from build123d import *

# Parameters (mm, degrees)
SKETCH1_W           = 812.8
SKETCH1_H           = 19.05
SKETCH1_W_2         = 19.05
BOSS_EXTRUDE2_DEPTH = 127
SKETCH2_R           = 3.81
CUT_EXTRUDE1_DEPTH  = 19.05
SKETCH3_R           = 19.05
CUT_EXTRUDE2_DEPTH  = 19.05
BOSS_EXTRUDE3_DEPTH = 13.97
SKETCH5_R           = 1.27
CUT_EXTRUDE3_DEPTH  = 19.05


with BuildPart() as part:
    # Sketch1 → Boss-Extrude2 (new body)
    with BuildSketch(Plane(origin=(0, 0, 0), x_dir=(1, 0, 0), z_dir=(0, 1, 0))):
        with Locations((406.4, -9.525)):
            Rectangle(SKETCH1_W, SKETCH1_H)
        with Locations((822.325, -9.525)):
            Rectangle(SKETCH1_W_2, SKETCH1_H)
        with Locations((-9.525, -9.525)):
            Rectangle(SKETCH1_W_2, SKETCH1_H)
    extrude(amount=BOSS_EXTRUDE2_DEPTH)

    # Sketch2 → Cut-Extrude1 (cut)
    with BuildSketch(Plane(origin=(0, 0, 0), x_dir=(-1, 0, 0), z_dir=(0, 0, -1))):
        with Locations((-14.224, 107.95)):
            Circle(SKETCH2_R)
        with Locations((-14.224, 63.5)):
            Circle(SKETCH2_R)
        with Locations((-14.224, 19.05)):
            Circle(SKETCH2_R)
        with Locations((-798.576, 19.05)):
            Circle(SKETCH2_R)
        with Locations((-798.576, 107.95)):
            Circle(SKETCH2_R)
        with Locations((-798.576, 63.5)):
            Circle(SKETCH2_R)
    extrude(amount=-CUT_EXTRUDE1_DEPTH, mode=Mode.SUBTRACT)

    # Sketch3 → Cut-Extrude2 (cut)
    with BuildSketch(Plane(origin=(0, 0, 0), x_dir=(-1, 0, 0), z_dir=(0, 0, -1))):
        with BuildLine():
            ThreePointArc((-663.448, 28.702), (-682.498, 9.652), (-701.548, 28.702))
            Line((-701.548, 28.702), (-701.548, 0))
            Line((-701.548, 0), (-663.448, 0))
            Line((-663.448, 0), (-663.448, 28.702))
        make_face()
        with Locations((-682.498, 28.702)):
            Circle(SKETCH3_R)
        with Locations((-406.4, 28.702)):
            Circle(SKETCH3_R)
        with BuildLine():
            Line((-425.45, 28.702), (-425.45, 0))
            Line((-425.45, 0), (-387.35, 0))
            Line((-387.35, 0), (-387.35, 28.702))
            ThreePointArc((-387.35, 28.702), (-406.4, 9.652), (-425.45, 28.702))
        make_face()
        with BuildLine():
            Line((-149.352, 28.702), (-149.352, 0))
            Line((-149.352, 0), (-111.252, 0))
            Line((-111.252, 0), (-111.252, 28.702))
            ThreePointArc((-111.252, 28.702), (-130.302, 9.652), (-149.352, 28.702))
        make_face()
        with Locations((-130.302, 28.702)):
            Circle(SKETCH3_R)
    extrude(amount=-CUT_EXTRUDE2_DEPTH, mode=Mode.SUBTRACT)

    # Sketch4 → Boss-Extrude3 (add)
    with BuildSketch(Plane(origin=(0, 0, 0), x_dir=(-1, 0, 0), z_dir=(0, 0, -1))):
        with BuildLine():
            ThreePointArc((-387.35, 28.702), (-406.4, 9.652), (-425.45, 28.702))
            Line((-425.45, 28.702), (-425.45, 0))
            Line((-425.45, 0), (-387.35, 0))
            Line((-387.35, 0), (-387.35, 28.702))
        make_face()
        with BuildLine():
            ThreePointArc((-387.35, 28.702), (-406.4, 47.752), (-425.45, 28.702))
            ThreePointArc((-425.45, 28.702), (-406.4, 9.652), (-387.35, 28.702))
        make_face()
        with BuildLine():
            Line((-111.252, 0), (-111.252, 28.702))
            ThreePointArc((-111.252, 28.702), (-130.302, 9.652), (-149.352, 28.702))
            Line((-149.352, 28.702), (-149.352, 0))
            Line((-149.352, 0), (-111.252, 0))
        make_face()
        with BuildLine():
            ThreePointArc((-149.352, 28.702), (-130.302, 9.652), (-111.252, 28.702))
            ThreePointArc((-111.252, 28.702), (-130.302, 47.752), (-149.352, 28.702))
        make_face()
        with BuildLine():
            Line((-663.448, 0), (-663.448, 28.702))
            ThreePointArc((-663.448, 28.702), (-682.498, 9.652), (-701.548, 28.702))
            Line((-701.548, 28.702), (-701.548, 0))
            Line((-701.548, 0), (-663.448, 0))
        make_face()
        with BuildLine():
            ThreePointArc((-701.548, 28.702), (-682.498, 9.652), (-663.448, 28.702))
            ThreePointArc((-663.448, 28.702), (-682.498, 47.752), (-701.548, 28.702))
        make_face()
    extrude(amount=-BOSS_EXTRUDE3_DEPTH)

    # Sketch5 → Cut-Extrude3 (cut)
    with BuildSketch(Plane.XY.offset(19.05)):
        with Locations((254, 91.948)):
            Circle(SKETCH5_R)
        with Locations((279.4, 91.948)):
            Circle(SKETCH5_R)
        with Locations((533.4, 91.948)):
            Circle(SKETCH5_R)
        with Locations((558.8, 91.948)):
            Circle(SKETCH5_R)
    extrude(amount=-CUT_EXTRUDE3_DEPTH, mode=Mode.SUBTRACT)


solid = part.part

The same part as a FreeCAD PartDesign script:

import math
import FreeCAD as App
import Part
import Sketcher

V = App.Vector
Q = App.Units.Quantity


def add_polygon(sketch, points):
    """Adds a closed chain of lines whose ends are joined by coincident constraints."""
    first, n = sketch.GeometryCount, len(points)
    for a, b in zip(points, points[1:] + points[:1]):
        sketch.addGeometry(Part.LineSegment(App.Vector(*a, 0), App.Vector(*b, 0)), False)
    for i in range(n):
        sketch.addConstraint(Sketcher.Constraint("Coincident", first + i, 2, first + (i + 1) % n, 1))

doc = App.newDocument("Part")
body = doc.addObject("PartDesign::Body", "Body")

sketch1 = body.newObject("Sketcher::SketchObject", "Sketch")
sketch1.AttachmentSupport = (doc.getObject("XZ_Plane"), [""])
sketch1.MapMode = "FlatFace"
add_polygon(sketch1, [(832, 19), (832, 0), (-19, 0), (-19, 19)])
sketch1.addConstraint(Sketcher.Constraint("Vertical", 0))
sketch1.addConstraint(Sketcher.Constraint("Horizontal", 1))
sketch1.addConstraint(Sketcher.Constraint("Vertical", 2))
sketch1.addConstraint(Sketcher.Constraint("Horizontal", 3))
sketch1.addConstraint(Sketcher.Constraint("PointOnObject", 0, 2, -1))
sketch1.addConstraint(Sketcher.Constraint("DistanceX", 1, 2, 1, 1, Q("33.5 in")))
sketch1.addConstraint(Sketcher.Constraint("DistanceY", 0, 2, 0, 1, Q("0.75 in")))
sketch1.addConstraint(Sketcher.Constraint("DistanceX", -1, 1, 0, 2, Q("32.75 in")))
pad1 = body.newObject("PartDesign::Pad", "Pad")
pad1.Profile = sketch1
pad1.Length = Q("5 in")
pad1.Reversed = True

sketch2 = body.newObject("Sketcher::SketchObject", "Sketch001")
sketch2.AttachmentSupport = (doc.getObject("XY_Plane"), [""])
sketch2.MapMode = "FlatFace"
sketch2.addGeometry(Part.Circle(V(14.2, 108, 0), V(0, 0, 1), 3.8), False)
sketch2.addGeometry(Part.Circle(V(14.2, 63.5, 0), V(0, 0, 1), 3.8), False)
sketch2.addGeometry(Part.Circle(V(14.2, 19.1, 0), V(0, 0, 1), 3.8), False)
sketch2.addGeometry(Part.Circle(V(798.6, 19.1, 0), V(0, 0, 1), 3.8), False)
sketch2.addGeometry(Part.Circle(V(798.6, 108, 0), V(0, 0, 1), 3.8), False)
sketch2.addGeometry(Part.Circle(V(798.6, 63.5, 0), V(0, 0, 1), 3.8), False)
sketch2.addConstraint(Sketcher.Constraint("Equal", 0, 1))
sketch2.addConstraint(Sketcher.Constraint("Equal", 1, 2))
sketch2.addConstraint(Sketcher.Constraint("Equal", 2, 3))
sketch2.addConstraint(Sketcher.Constraint("Equal", 3, 4))
sketch2.addConstraint(Sketcher.Constraint("Equal", 4, 5))
sketch2.addConstraint(Sketcher.Constraint("Horizontal", 2, 3, 3, 3))
sketch2.addConstraint(Sketcher.Constraint("Horizontal", 0, 3, 4, 3))
sketch2.addConstraint(Sketcher.Constraint("Horizontal", 1, 3, 5, 3))
sketch2.addConstraint(Sketcher.Constraint("Vertical", 0, 3, 1, 3))
sketch2.addConstraint(Sketcher.Constraint("Vertical", 1, 3, 2, 3))
sketch2.addConstraint(Sketcher.Constraint("Vertical", 3, 3, 4, 3))
sketch2.addConstraint(Sketcher.Constraint("Vertical", 4, 3, 5, 3))
sketch2.addConstraint(Sketcher.Constraint("Diameter", 0, Q("0.3 in")))
sketch2.addConstraint(Sketcher.Constraint("DistanceY", -1, 1, 1, 3, Q("2.5 in")))
sketch2.addConstraint(Sketcher.Constraint("DistanceY", 2, 3, 0, 3, Q("3.5 in")))
sketch2.addConstraint(Sketcher.Constraint("DistanceX", -1, 1, 0, 3, Q("0.56 in")))
sketch2.addConstraint(Sketcher.Constraint("DistanceY", -1, 1, 0, 3, Q("4.25 in")))
sketch2.addConstraint(Sketcher.Constraint("DistanceX", -1, 1, 3, 3, Q("31.44 in")))
pocket1 = body.newObject("PartDesign::Pocket", "Pocket")
pocket1.Profile = sketch2
pocket1.Length = Q("0.75 in")
pocket1.Reversed = True

sketch3 = body.newObject("Sketcher::SketchObject", "Sketch002")
sketch3.AttachmentSupport = (doc.getObject("XY_Plane"), [""])
sketch3.MapMode = "FlatFace"
sketch3.addGeometry(Part.LineSegment(V(702, 29, 0), V(702, 0, 0)), False)
sketch3.addGeometry(Part.LineSegment(V(702, 0, 0), V(663, 0, 0)), False)
sketch3.addGeometry(Part.LineSegment(V(663, 0, 0), V(663, 29, 0)), False)
sketch3.addGeometry(Part.ArcOfCircle(Part.Circle(V(682, 29, 0), V(0, 0, 1), 19), math.radians(0), math.radians(180)), False)
sketch3.addGeometry(Part.ArcOfCircle(Part.Circle(V(406, 29, 0), V(0, 0, 1), 19), math.radians(0), math.radians(180)), False)
sketch3.addGeometry(Part.LineSegment(V(425, 29, 0), V(425, 0, 0)), False)
sketch3.addGeometry(Part.LineSegment(V(425, 0, 0), V(387, 0, 0)), False)
sketch3.addGeometry(Part.LineSegment(V(387, 0, 0), V(387, 29, 0)), False)
sketch3.addGeometry(Part.LineSegment(V(149, 29, 0), V(149, 0, 0)), False)
sketch3.addGeometry(Part.LineSegment(V(149, 0, 0), V(111, 0, 0)), False)
sketch3.addGeometry(Part.LineSegment(V(111, 0, 0), V(111, 29, 0)), False)
sketch3.addGeometry(Part.ArcOfCircle(Part.Circle(V(130, 29, 0), V(0, 0, 1), 19), math.radians(0), math.radians(180)), False)
sketch3.addConstraint(Sketcher.Constraint("Coincident", 0, 2, 1, 1))
sketch3.addConstraint(Sketcher.Constraint("Coincident", 1, 2, 2, 1))
sketch3.addConstraint(Sketcher.Constraint("Tangent", 2, 2, 3, 2))
sketch3.addConstraint(Sketcher.Constraint("Tangent", 3, 1, 0, 1))
sketch3.addConstraint(Sketcher.Constraint("Tangent", 4, 1, 5, 1))
sketch3.addConstraint(Sketcher.Constraint("Coincident", 5, 2, 6, 1))
sketch3.addConstraint(Sketcher.Constraint("Coincident", 6, 2, 7, 1))
sketch3.addConstraint(Sketcher.Constraint("Tangent", 7, 2, 4, 2))
sketch3.addConstraint(Sketcher.Constraint("Coincident", 8, 2, 9, 1))
sketch3.addConstraint(Sketcher.Constraint("Coincident", 9, 2, 10, 1))
sketch3.addConstraint(Sketcher.Constraint("Tangent", 10, 2, 11, 2))
sketch3.addConstraint(Sketcher.Constraint("Tangent", 11, 1, 8, 1))
sketch3.addConstraint(Sketcher.Constraint("Vertical", 0))
sketch3.addConstraint(Sketcher.Constraint("Horizontal", 1))
sketch3.addConstraint(Sketcher.Constraint("Vertical", 2))
sketch3.addConstraint(Sketcher.Constraint("Vertical", 5))
sketch3.addConstraint(Sketcher.Constraint("Horizontal", 6))
sketch3.addConstraint(Sketcher.Constraint("Vertical", 7))
sketch3.addConstraint(Sketcher.Constraint("Vertical", 8))
sketch3.addConstraint(Sketcher.Constraint("Horizontal", 9))
sketch3.addConstraint(Sketcher.Constraint("Vertical", 10))
sketch3.addConstraint(Sketcher.Constraint("Equal", 3, 4))
sketch3.addConstraint(Sketcher.Constraint("Equal", 4, 11))
sketch3.addConstraint(Sketcher.Constraint("PointOnObject", 0, 2, -1))
sketch3.addConstraint(Sketcher.Constraint("PointOnObject", 5, 2, -1))
sketch3.addConstraint(Sketcher.Constraint("PointOnObject", 8, 2, -1))
sketch3.addConstraint(Sketcher.Constraint("Horizontal", 3, 3, 4, 3))
sketch3.addConstraint(Sketcher.Constraint("Horizontal", 4, 3, 11, 3))
sketch3.addConstraint(Sketcher.Constraint("Radius", 3, Q("0.75 in")))
sketch3.addConstraint(Sketcher.Constraint("DistanceX", -1, 1, 4, 3, Q("16 in")))
sketch3.addConstraint(Sketcher.Constraint("DistanceY", 0, 2, 0, 1, Q("1.13 in")))
sketch3.addConstraint(Sketcher.Constraint("DistanceX", -1, 1, 3, 3, Q("26.87 in")))
sketch3.addConstraint(Sketcher.Constraint("DistanceX", -1, 1, 11, 3, Q("5.13 in")))
pocket2 = body.newObject("PartDesign::Pocket", "Pocket001")
pocket2.Profile = sketch3
pocket2.Length = Q("0.75 in")
pocket2.Reversed = True

sketch4 = body.newObject("Sketcher::SketchObject", "Sketch003")
sketch4.AttachmentSupport = (doc.getObject("XY_Plane"), [""])
sketch4.MapMode = "FlatFace"
sketch4.addGeometry(Part.LineSegment(V(425, 29, 0), V(425, 0, 0)), False)
sketch4.addGeometry(Part.LineSegment(V(425, 0, 0), V(387, 0, 0)), False)
sketch4.addGeometry(Part.LineSegment(V(387, 0, 0), V(387, 29, 0)), False)
sketch4.addGeometry(Part.ArcOfCircle(Part.Circle(V(406, 29, 0), V(0, 0, 1), 19), math.radians(0), math.radians(180)), False)
sketch4.addGeometry(Part.LineSegment(V(111, 0, 0), V(111, 29, 0)), False)
sketch4.addGeometry(Part.ArcOfCircle(Part.Circle(V(130, 29, 0), V(0, 0, 1), 19), math.radians(0), math.radians(180)), False)
sketch4.addGeometry(Part.LineSegment(V(149, 29, 0), V(149, 0, 0)), False)
sketch4.addGeometry(Part.LineSegment(V(149, 0, 0), V(111, 0, 0)), False)
sketch4.addGeometry(Part.LineSegment(V(663, 0, 0), V(663, 29, 0)), False)
sketch4.addGeometry(Part.ArcOfCircle(Part.Circle(V(682, 29, 0), V(0, 0, 1), 19), math.radians(0), math.radians(180)), False)
sketch4.addGeometry(Part.LineSegment(V(702, 29, 0), V(702, 0, 0)), False)
sketch4.addGeometry(Part.LineSegment(V(702, 0, 0), V(663, 0, 0)), False)
sketch4.addConstraint(Sketcher.Constraint("Coincident", 0, 2, 1, 1))
sketch4.addConstraint(Sketcher.Constraint("Coincident", 1, 2, 2, 1))
sketch4.addConstraint(Sketcher.Constraint("Tangent", 2, 2, 3, 2))
sketch4.addConstraint(Sketcher.Constraint("Tangent", 3, 1, 0, 1))
sketch4.addConstraint(Sketcher.Constraint("Tangent", 4, 2, 5, 2))
sketch4.addConstraint(Sketcher.Constraint("Tangent", 5, 1, 6, 1))
sketch4.addConstraint(Sketcher.Constraint("Coincident", 6, 2, 7, 1))
sketch4.addConstraint(Sketcher.Constraint("Coincident", 7, 2, 4, 1))
sketch4.addConstraint(Sketcher.Constraint("Tangent", 8, 2, 9, 2))
sketch4.addConstraint(Sketcher.Constraint("Tangent", 9, 1, 10, 1))
sketch4.addConstraint(Sketcher.Constraint("Coincident", 10, 2, 11, 1))
sketch4.addConstraint(Sketcher.Constraint("Coincident", 11, 2, 8, 1))
sketch4.addConstraint(Sketcher.Constraint("Vertical", 0))
sketch4.addConstraint(Sketcher.Constraint("Horizontal", 1))
sketch4.addConstraint(Sketcher.Constraint("Vertical", 2))
sketch4.addConstraint(Sketcher.Constraint("Vertical", 4))
sketch4.addConstraint(Sketcher.Constraint("Vertical", 6))
sketch4.addConstraint(Sketcher.Constraint("Horizontal", 7))
sketch4.addConstraint(Sketcher.Constraint("Vertical", 8))
sketch4.addConstraint(Sketcher.Constraint("Vertical", 10))
sketch4.addConstraint(Sketcher.Constraint("Horizontal", 11))
sketch4.addConstraint(Sketcher.Constraint("Equal", 3, 5))
sketch4.addConstraint(Sketcher.Constraint("Equal", 5, 9))
sketch4.addConstraint(Sketcher.Constraint("PointOnObject", 0, 2, -1))
sketch4.addConstraint(Sketcher.Constraint("PointOnObject", 6, 2, -1))
sketch4.addConstraint(Sketcher.Constraint("PointOnObject", 10, 2, -1))
sketch4.addConstraint(Sketcher.Constraint("Horizontal", 3, 3, 5, 3))
sketch4.addConstraint(Sketcher.Constraint("Horizontal", 5, 3, 9, 3))
sketch4.addConstraint(Sketcher.Constraint("Radius", 3, Q("0.75 in")))
sketch4.addConstraint(Sketcher.Constraint("DistanceX", -1, 1, 3, 3, Q("16 in")))
sketch4.addConstraint(Sketcher.Constraint("DistanceY", 0, 2, 0, 1, Q("1.13 in")))
sketch4.addConstraint(Sketcher.Constraint("DistanceX", -1, 1, 5, 3, Q("5.13 in")))
sketch4.addConstraint(Sketcher.Constraint("DistanceX", -1, 1, 9, 3, Q("26.87 in")))
pad2 = body.newObject("PartDesign::Pad", "Pad001")
pad2.Profile = sketch4
pad2.Length = Q("0.55 in")

sketch5 = body.newObject("Sketcher::SketchObject", "Sketch004")
sketch5.AttachmentSupport = (doc.getObject("XY_Plane"), [""])
sketch5.MapMode = "FlatFace"
sketch5.AttachmentOffset = App.Placement(V(0, 0, 0.75 * 25.4), App.Rotation())
sketch5.addGeometry(Part.Circle(V(254, 91.9, 0), V(0, 0, 1), 1.3), False)
sketch5.addGeometry(Part.Circle(V(279.4, 91.9, 0), V(0, 0, 1), 1.3), False)
sketch5.addGeometry(Part.Circle(V(533.4, 91.9, 0), V(0, 0, 1), 1.3), False)
sketch5.addGeometry(Part.Circle(V(558.8, 91.9, 0), V(0, 0, 1), 1.3), False)
sketch5.addConstraint(Sketcher.Constraint("Equal", 0, 1))
sketch5.addConstraint(Sketcher.Constraint("Equal", 1, 2))
sketch5.addConstraint(Sketcher.Constraint("Equal", 2, 3))
sketch5.addConstraint(Sketcher.Constraint("Horizontal", 0, 3, 1, 3))
sketch5.addConstraint(Sketcher.Constraint("Horizontal", 1, 3, 2, 3))
sketch5.addConstraint(Sketcher.Constraint("Horizontal", 2, 3, 3, 3))
sketch5.addConstraint(Sketcher.Constraint("Diameter", 0, Q("0.1 in")))
sketch5.addConstraint(Sketcher.Constraint("DistanceX", -1, 1, 0, 3, Q("10 in")))
sketch5.addConstraint(Sketcher.Constraint("DistanceX", -1, 1, 1, 3, Q("11 in")))
sketch5.addConstraint(Sketcher.Constraint("DistanceX", -1, 1, 2, 3, Q("21 in")))
sketch5.addConstraint(Sketcher.Constraint("DistanceX", -1, 1, 3, 3, Q("22 in")))
sketch5.addConstraint(Sketcher.Constraint("DistanceY", -1, 1, 0, 3, Q("3.62 in")))
pocket3 = body.newObject("PartDesign::Pocket", "Pocket002")
pocket3.Profile = sketch5
pocket3.Length = Q("0.75 in")

doc.recompute()
